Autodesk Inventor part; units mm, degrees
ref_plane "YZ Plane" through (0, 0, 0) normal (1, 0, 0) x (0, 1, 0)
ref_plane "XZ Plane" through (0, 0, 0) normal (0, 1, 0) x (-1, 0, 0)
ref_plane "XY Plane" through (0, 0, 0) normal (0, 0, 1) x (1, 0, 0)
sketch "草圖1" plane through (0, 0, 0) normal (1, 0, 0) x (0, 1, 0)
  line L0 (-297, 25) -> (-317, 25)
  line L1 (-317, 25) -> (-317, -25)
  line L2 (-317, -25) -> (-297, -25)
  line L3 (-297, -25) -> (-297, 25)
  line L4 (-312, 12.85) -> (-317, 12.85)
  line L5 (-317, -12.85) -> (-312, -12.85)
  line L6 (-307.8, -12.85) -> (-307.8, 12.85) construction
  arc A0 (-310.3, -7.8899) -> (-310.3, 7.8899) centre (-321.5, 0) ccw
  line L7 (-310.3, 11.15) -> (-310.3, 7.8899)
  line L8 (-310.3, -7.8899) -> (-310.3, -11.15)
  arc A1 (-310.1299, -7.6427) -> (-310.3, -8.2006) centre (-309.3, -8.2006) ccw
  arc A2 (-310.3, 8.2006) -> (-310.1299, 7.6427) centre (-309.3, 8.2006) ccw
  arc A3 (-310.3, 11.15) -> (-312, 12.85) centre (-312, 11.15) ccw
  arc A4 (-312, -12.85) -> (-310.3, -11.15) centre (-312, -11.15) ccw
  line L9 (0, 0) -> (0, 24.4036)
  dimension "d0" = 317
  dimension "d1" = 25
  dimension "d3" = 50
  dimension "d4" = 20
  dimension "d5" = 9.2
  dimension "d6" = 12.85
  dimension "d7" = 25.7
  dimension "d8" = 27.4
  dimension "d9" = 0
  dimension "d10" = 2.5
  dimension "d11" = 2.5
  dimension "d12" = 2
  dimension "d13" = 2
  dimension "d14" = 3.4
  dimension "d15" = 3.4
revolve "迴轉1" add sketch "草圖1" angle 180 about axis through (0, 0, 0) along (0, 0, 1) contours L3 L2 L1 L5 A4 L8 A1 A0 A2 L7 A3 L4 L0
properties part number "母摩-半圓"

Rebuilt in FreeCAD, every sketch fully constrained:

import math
import FreeCAD as App
import Part
import Sketcher
Q = App.Units.Quantity

doc = App.newDocument("Part")
body = doc.addObject("PartDesign::Body", "Body")

# Sketch on YZ plane
sketch1 = body.newObject("Sketcher::SketchObject", "Sketch")
sketch1.AttachmentSupport = (doc.getObject("YZ_Plane"), [""])
sketch1.MapMode = "FlatFace"
sketch1.addGeometry([
    Part.LineSegment(App.Vector(-297, -25, 0), App.Vector(-297, 25, 0)),  # 0
    Part.LineSegment(App.Vector(-297, 25, 0), App.Vector(-317, 25, 0)),  # 1
    Part.LineSegment(App.Vector(-317, 25, 0), App.Vector(-317, 12.8, 0)),  # 2
    Part.LineSegment(App.Vector(-317, 12.8, 0), App.Vector(-312, 12.8, 0)),  # 3
    Part.ArcOfCircle(Part.Circle(App.Vector(-312, 11.2, 0), App.Vector(0, 0, 1), 1.7), math.radians(0), math.radians(90)),  # 4
    Part.LineSegment(App.Vector(-310.3, 11.2, 0), App.Vector(-310.3, 8.2, 0)),  # 5
    Part.ArcOfCircle(Part.Circle(App.Vector(-309.3, 8.2, 0), App.Vector(0, 0, 1), 1), math.radians(180), math.radians(214)),  # 6
    Part.ArcOfCircle(Part.Circle(App.Vector(-321.5, 0, 0), App.Vector(0, 0, 1), 13.7), math.radians(-34), math.radians(34)),  # 7
    Part.ArcOfCircle(Part.Circle(App.Vector(-309.3, -8.2, 0), App.Vector(0, 0, 1), 1), math.radians(146), math.radians(180)),  # 8
    Part.LineSegment(App.Vector(-310.3, -8.2, 0), App.Vector(-310.3, -11.2, 0)),  # 9
    Part.ArcOfCircle(Part.Circle(App.Vector(-312, -11.2, 0), App.Vector(0, 0, 1), 1.7), math.radians(-90), math.radians(0)),  # 10
    Part.LineSegment(App.Vector(-312, -12.8, 0), App.Vector(-317, -12.8, 0)),  # 11
    Part.LineSegment(App.Vector(-317, -12.8, 0), App.Vector(-317, -25, 0)),  # 12
    Part.LineSegment(App.Vector(-317, -25, 0), App.Vector(-297, -25, 0)),  # 13
], False)
sketch1.addConstraint([
    Sketcher.Constraint("Coincident", 0, 2, 1, 1),
    Sketcher.Constraint("Coincident", 1, 2, 2, 1),
    Sketcher.Constraint("Coincident", 2, 2, 3, 1),
    Sketcher.Constraint("Tangent", 3, 2, 4, 2),
    Sketcher.Constraint("Tangent", 4, 1, 5, 1),
    Sketcher.Constraint("Tangent", 5, 2, 6, 1),
    Sketcher.Constraint("Tangent", 6, 2, 7, 2),
    Sketcher.Constraint("Tangent", 7, 1, 8, 1),
    Sketcher.Constraint("Tangent", 8, 2, 9, 1),
    Sketcher.Constraint("Tangent", 9, 2, 10, 2),
    Sketcher.Constraint("Tangent", 10, 1, 11, 1),
    Sketcher.Constraint("Coincident", 11, 2, 12, 1),
    Sketcher.Constraint("Coincident", 12, 2, 13, 1),
    Sketcher.Constraint("Coincident", 13, 2, 0, 1),
    Sketcher.Constraint("Vertical", 0),
    Sketcher.Constraint("Horizontal", 1),
    Sketcher.Constraint("Vertical", 2),
    Sketcher.Constraint("Horizontal", 3),
    Sketcher.Constraint("Vertical", 5),
    Sketcher.Constraint("Vertical", 9),
    Sketcher.Constraint("Horizontal", 11),
    Sketcher.Constraint("Vertical", 12),
    Sketcher.Constraint("Horizontal", 13),
    Sketcher.Constraint("Equal", 6, 8),
    Sketcher.Constraint("Equal", 4, 10),
    Sketcher.Constraint("Symmetric", 6, 3, 8, 3, -1),
    Sketcher.Constraint("Symmetric", 2, 2, 11, 2, -1),
    Sketcher.Constraint("Equal", 2, 12),
    Sketcher.Constraint("Radius", 6, Q("1 mm")),
    Sketcher.Constraint("Radius", 4, Q("1.7 mm")),
    Sketcher.Constraint("Radius", 7, Q("13.7 mm")),
    Sketcher.Constraint("DistanceX", 1, 2, 1, 1, Q("20 mm")),
    Sketcher.Constraint("DistanceY", 0, 1, 0, 2, Q("50 mm")),
    Sketcher.Constraint("DistanceX", 1, 2, -1, 1, Q("317 mm")),
    Sketcher.Constraint("DistanceX", 3, 1, 3, 2, Q("5 mm")),
    Sketcher.Constraint("DistanceY", -1, 1, 2, 2, Q("12.85 mm")),
    Sketcher.Constraint("DistanceX", 7, 3, -1, 1, Q("321.5 mm")),
])
revolution = body.newObject("PartDesign::Revolution", "Revolution")
revolution.Profile = sketch1
revolution.ReferenceAxis = (sketch1, ["V_Axis"])
revolution.Angle = 180

doc.recompute()
